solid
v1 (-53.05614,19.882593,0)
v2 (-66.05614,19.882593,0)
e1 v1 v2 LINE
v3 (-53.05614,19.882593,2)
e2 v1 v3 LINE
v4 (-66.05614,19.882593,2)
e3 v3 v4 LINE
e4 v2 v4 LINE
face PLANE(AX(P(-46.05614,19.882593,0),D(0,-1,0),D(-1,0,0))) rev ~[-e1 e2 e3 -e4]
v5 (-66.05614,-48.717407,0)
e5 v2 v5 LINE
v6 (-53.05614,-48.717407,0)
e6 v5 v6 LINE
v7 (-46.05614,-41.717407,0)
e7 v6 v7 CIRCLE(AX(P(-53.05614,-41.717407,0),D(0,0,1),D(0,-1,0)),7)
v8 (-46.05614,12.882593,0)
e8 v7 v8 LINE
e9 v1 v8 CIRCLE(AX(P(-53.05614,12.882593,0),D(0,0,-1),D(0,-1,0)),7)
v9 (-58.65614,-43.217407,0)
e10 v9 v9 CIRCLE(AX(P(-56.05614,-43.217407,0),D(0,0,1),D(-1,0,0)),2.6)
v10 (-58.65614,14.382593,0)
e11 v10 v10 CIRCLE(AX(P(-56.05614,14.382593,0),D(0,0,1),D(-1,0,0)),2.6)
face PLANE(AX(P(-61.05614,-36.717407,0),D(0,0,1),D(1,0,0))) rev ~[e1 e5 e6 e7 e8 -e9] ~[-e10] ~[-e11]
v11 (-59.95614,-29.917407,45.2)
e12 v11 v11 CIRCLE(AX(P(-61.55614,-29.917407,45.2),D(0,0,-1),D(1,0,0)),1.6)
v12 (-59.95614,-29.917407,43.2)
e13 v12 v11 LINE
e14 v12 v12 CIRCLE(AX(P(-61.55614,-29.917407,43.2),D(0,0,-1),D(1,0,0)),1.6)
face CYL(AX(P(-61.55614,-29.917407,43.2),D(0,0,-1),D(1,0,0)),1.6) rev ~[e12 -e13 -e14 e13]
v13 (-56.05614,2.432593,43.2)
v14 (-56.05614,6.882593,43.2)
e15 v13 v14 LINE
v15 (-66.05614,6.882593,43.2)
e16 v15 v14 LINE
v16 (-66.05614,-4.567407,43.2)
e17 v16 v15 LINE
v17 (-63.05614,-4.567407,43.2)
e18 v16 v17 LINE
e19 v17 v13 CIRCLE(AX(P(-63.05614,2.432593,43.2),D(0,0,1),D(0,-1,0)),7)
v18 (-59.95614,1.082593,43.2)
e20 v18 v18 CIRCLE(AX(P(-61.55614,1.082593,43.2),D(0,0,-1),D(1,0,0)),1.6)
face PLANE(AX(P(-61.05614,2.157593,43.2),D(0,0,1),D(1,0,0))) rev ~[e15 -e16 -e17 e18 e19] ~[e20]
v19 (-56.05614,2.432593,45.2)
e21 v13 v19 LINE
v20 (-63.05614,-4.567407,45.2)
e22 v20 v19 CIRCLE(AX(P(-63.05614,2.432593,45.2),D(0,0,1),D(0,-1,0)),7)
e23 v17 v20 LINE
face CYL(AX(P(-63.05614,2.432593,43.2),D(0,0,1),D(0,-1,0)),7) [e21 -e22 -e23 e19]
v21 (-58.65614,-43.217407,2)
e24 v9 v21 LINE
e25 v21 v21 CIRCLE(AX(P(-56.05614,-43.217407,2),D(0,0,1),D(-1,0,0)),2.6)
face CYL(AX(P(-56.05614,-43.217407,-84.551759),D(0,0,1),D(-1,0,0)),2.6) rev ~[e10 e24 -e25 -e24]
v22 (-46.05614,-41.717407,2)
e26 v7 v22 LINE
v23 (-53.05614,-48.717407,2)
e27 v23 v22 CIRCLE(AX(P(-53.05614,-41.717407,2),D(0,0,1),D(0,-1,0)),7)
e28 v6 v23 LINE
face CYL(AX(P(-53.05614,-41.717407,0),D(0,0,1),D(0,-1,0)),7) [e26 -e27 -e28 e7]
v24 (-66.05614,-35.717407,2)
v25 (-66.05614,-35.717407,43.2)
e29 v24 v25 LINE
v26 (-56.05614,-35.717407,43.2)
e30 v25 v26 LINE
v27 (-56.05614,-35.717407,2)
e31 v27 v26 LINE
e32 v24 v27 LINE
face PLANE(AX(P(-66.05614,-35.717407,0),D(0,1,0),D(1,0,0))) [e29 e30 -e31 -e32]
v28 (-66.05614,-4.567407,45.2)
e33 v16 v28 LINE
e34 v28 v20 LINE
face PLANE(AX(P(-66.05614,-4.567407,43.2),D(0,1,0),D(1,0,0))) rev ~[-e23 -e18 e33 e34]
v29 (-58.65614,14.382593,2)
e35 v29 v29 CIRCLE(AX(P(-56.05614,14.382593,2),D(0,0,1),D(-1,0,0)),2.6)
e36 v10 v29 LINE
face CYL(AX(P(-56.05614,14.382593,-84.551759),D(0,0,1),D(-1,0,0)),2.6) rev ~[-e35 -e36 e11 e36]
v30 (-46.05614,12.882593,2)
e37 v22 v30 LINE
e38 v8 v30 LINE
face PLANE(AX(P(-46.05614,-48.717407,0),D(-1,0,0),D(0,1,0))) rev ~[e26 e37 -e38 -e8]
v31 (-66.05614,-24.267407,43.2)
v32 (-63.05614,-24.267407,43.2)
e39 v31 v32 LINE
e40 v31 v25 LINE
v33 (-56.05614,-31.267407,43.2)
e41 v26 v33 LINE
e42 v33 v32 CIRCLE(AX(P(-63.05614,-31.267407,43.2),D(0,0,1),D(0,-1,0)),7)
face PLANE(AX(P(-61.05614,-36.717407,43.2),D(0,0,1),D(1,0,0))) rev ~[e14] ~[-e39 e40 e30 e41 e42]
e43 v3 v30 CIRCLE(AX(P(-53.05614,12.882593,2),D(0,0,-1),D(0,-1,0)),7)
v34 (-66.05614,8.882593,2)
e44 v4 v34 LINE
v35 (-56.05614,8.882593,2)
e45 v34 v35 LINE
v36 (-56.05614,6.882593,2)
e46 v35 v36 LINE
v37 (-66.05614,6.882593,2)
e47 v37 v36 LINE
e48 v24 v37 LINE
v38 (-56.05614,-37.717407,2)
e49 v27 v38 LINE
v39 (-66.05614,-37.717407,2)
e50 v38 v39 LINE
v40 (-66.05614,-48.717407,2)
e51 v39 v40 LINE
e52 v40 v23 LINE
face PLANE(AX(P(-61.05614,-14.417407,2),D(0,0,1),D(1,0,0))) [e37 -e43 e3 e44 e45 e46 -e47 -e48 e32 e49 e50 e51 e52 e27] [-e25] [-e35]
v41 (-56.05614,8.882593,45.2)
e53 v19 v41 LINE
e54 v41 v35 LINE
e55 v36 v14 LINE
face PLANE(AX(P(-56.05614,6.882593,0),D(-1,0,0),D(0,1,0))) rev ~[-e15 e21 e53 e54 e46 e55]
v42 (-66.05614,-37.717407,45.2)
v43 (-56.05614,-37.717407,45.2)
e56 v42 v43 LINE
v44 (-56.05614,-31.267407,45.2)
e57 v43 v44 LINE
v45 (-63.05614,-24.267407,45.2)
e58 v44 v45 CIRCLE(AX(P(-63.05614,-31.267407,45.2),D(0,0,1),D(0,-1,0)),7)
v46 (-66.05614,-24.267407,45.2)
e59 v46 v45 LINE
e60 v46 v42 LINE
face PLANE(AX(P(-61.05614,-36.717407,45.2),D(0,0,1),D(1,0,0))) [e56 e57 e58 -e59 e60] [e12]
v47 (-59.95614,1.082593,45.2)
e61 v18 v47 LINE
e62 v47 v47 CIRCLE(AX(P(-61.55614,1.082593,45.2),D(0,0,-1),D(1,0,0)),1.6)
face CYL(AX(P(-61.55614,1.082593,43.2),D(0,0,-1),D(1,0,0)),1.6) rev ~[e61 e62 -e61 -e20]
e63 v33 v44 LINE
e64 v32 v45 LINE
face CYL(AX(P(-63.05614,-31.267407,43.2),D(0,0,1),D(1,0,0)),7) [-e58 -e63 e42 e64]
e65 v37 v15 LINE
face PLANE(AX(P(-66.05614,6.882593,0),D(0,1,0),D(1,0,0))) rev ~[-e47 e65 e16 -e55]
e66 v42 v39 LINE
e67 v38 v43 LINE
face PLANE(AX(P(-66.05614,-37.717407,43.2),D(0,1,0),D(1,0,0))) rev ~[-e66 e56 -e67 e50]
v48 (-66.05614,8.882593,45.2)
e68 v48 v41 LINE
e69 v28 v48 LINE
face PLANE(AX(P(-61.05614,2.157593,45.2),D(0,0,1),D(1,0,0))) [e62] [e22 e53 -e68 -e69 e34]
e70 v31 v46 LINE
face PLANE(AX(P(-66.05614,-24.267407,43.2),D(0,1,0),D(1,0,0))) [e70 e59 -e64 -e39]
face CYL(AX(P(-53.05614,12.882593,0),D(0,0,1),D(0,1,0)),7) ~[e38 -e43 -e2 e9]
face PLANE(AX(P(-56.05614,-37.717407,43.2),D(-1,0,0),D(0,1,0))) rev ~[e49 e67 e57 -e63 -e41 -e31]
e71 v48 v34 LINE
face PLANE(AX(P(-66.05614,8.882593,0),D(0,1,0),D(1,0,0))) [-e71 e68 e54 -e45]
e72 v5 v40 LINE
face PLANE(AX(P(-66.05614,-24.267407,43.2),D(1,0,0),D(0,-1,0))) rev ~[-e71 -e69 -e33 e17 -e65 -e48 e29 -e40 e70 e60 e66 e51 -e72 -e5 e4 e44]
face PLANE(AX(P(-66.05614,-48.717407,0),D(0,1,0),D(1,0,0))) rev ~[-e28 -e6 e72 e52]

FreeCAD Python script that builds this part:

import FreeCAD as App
import Part
import Sketcher
Q = App.Units.Quantity


def edges_at(feature, points):
    """Names of the edges that pass closest to the given points."""
    edges = feature.Shape.Edges
    near = lambda p: min(range(len(edges)), key=lambda i: edges[i].distToShape(Part.Vertex(*p))[0])
    return sorted({f"Edge{near(p) + 1}" for p in points})

doc = App.newDocument("Part")
params = doc.addObject("Spreadsheet::Sheet", "Params")
for row, (alias, value) in enumerate([
    ("sketch1_width", "10 mm"),
    ("sketch1_width2", "20 mm"),
    ("sketch1_height", "2 mm"),
    ("sketch1_height2", "11 mm"),
    ("sketch1_height3", "42.6 mm"),
    ("pad1_length", "2 mm"),
    ("sketch2_width", "10 mm"),
    ("sketch2_height", "2 mm"),
    ("pad2_length", "43.2 mm"),
    ("sketch3_width", "10 mm"),
    ("sketch3_height", "13.45 mm"),
    ("pad3_length", "2 mm"),
    ("sketch4_diameter", "3.2 mm"),
    ("sketch5_diameter", "5.2 mm"),
    ("hole_diameter", "5.2 mm"),
    ("fillet_radius", "7 mm"),
], start=1):
    params.set(f"A{row}", alias)
    params.set(f"B{row}", "=" + value)
    params.setAlias(f"B{row}", alias)

body = doc.addObject("PartDesign::Body", "Body")

# Sketch on XY plane
sketch1 = body.newObject("Sketcher::SketchObject", "Sketch")
sketch1.AttachmentSupport = (doc.getObject("XY_Plane"), [""])
sketch1.MapMode = "FlatFace"
sketch1.addGeometry([
    Part.LineSegment(App.Vector(-66.1, 6.9, 0), App.Vector(-66.1, -35.7, 0)),  # 0
    Part.LineSegment(App.Vector(-66.1, -35.7, 0), App.Vector(-56.1, -35.7, 0)),  # 1
    Part.LineSegment(App.Vector(-56.1, -35.7, 0), App.Vector(-56.1, -37.7, 0)),  # 2
    Part.LineSegment(App.Vector(-56.1, -37.7, 0), App.Vector(-66.1, -37.7, 0)),  # 3
    Part.LineSegment(App.Vector(-66.1, -37.7, 0), App.Vector(-66.1, -48.7, 0)),  # 4
    Part.LineSegment(App.Vector(-66.1, -48.7, 0), App.Vector(-46.1, -48.7, 0)),  # 5
    Part.LineSegment(App.Vector(-46.1, -48.7, 0), App.Vector(-46.1, 19.9, 0)),  # 6
    Part.LineSegment(App.Vector(-46.1, 19.9, 0), App.Vector(-66.1, 19.9, 0)),  # 7
    Part.LineSegment(App.Vector(-66.1, 19.9, 0), App.Vector(-66.1, 8.9, 0)),  # 8
    Part.LineSegment(App.Vector(-66.1, 8.9, 0), App.Vector(-56.1, 8.9, 0)),  # 9
    Part.LineSegment(App.Vector(-56.1, 8.9, 0), App.Vector(-56.1, 6.9, 0)),  # 10
    Part.LineSegment(App.Vector(-56.1, 6.9, 0), App.Vector(-66.1, 6.9, 0)),  # 11
], False)
sketch1.addConstraint([
    Sketcher.Constraint("Coincident", 0, 2, 1, 1),
    Sketcher.Constraint("Coincident", 1, 2, 2, 1),
    Sketcher.Constraint("Coincident", 2, 2, 3, 1),
    Sketcher.Constraint("Coincident", 3, 2, 4, 1),
    Sketcher.Constraint("Coincident", 4, 2, 5, 1),
    Sketcher.Constraint("Coincident", 5, 2, 6, 1),
    Sketcher.Constraint("Coincident", 6, 2, 7, 1),
    Sketcher.Constraint("Coincident", 7, 2, 8, 1),
    Sketcher.Constraint("Coincident", 8, 2, 9, 1),
    Sketcher.Constraint("Coincident", 9, 2, 10, 1),
    Sketcher.Constraint("Coincident", 10, 2, 11, 1),
    Sketcher.Constraint("Coincident", 11, 2, 0, 1),
    Sketcher.Constraint("Vertical", 0),
    Sketcher.Constraint("Horizontal", 1),
    Sketcher.Constraint("Vertical", 2),
    Sketcher.Constraint("Horizontal", 3),
    Sketcher.Constraint("Vertical", 4),
    Sketcher.Constraint("Horizontal", 5),
    Sketcher.Constraint("Vertical", 6),
    Sketcher.Constraint("Horizontal", 7),
    Sketcher.Constraint("Vertical", 8),
    Sketcher.Constraint("Horizontal", 9),
    Sketcher.Constraint("Vertical", 10),
    Sketcher.Constraint("Horizontal", 11),
    Sketcher.Constraint("Vertical", 0, 2, 3, 2),
    Sketcher.Constraint("Vertical", 4, 2, 7, 2),
    Sketcher.Constraint("Vertical", 2, 2, 9, 2),
    Sketcher.Constraint("Equal", 4, 8),
    Sketcher.Constraint("Equal", 2, 10),
    Sketcher.Constraint("DistanceX", 1, 1, 1, 2, Q("10 mm")),
    Sketcher.Constraint("DistanceX", 5, 1, 5, 2, Q("20 mm")),
    Sketcher.Constraint("DistanceY", 2, 2, 2, 1, Q("2 mm")),
    Sketcher.Constraint("DistanceY", 4, 2, 4, 1, Q("11 mm")),
    Sketcher.Constraint("DistanceY", 0, 2, 0, 1, Q("42.6 mm")),
    Sketcher.Constraint("DistanceX", 0, 2, -1, 1, Q("66.05614 mm")),
    Sketcher.Constraint("DistanceY", 0, 2, -1, 1, Q("35.717407 mm")),
])
sketch1.setExpression("Constraints[29]", "Params.sketch1_width")
sketch1.setExpression("Constraints[30]", "Params.sketch1_width2")
sketch1.setExpression("Constraints[31]", "Params.sketch1_height")
sketch1.setExpression("Constraints[32]", "Params.sketch1_height2")
sketch1.setExpression("Constraints[33]", "Params.sketch1_height3")
pad1 = body.newObject("PartDesign::Pad", "Pad")
pad1.Profile = sketch1
pad1.setExpression("Length", "Params.pad1_length")

# Sketch on XY plane
sketch2 = body.newObject("Sketcher::SketchObject", "Sketch001")
sketch2.AttachmentSupport = (doc.getObject("XY_Plane"), [""])
sketch2.MapMode = "FlatFace"
sketch2.addGeometry([
    Part.LineSegment(App.Vector(-66.1, -35.7, 0), App.Vector(-66.1, -37.7, 0)),  # 0
    Part.LineSegment(App.Vector(-66.1, -37.7, 0), App.Vector(-56.1, -37.7, 0)),  # 1
    Part.LineSegment(App.Vector(-56.1, -37.7, 0), App.Vector(-56.1, -35.7, 0)),  # 2
    Part.LineSegment(App.Vector(-56.1, -35.7, 0), App.Vector(-66.1, -35.7, 0)),  # 3
    Part.LineSegment(App.Vector(-66.1, 8.9, 0), App.Vector(-66.1, 6.9, 0)),  # 4
    Part.LineSegment(App.Vector(-66.1, 6.9, 0), App.Vector(-56.1, 6.9, 0)),  # 5
    Part.LineSegment(App.Vector(-56.1, 6.9, 0), App.Vector(-56.1, 8.9, 0)),  # 6
    Part.LineSegment(App.Vector(-56.1, 8.9, 0), App.Vector(-66.1, 8.9, 0)),  # 7
], False)
sketch2.addConstraint([
    Sketcher.Constraint("Coincident", 0, 2, 1, 1),
    Sketcher.Constraint("Coincident", 1, 2, 2, 1),
    Sketcher.Constraint("Coincident", 2, 2, 3, 1),
    Sketcher.Constraint("Coincident", 3, 2, 0, 1),
    Sketcher.Constraint("Coincident", 4, 2, 5, 1),
    Sketcher.Constraint("Coincident", 5, 2, 6, 1),
    Sketcher.Constraint("Coincident", 6, 2, 7, 1),
    Sketcher.Constraint("Coincident", 7, 2, 4, 1),
    Sketcher.Constraint("Vertical", 0),
    Sketcher.Constraint("Horizontal", 1),
    Sketcher.Constraint("Vertical", 2),
    Sketcher.Constraint("Horizontal", 3),
    Sketcher.Constraint("Vertical", 4),
    Sketcher.Constraint("Horizontal", 5),
    Sketcher.Constraint("Vertical", 6),
    Sketcher.Constraint("Horizontal", 7),
    Sketcher.Constraint("Vertical", 3, 2, 4, 2),
    Sketcher.Constraint("Vertical", 2, 2, 5, 2),
    Sketcher.Constraint("Equal", 2, 4),
    Sketcher.Constraint("DistanceX", 1, 1, 1, 2, Q("10 mm")),
    Sketcher.Constraint("DistanceY", 0, 2, 0, 1, Q("2 mm")),
    Sketcher.Constraint("DistanceY", 3, 2, 4, 2, Q("42.6 mm")),
    Sketcher.Constraint("DistanceX", 0, 2, -1, 1, Q("66.05614 mm")),
    Sketcher.Constraint("DistanceY", 0, 2, -1, 1, Q("37.717407 mm")),
])
sketch2.setExpression("Constraints[19]", "Params.sketch2_width")
sketch2.setExpression("Constraints[20]", "Params.sketch2_height")
pad2 = body.newObject("PartDesign::Pad", "Pad001")
pad2.Profile = sketch2
pad2.setExpression("Length", "Params.pad2_length")

# Sketch on XY plane
sketch3 = body.newObject("Sketcher::SketchObject", "Sketch002")
sketch3.AttachmentSupport = (doc.getObject("XY_Plane"), [""])
sketch3.MapMode = "FlatFace"
sketch3.AttachmentOffset = App.Placement(App.Vector(0, 0, 43.2), App.Rotation())
sketch3.addGeometry([
    Part.LineSegment(App.Vector(-66, -38, 0), App.Vector(-56, -38, 0)),  # 0
    Part.LineSegment(App.Vector(-56, -38, 0), App.Vector(-56, -24, 0)),  # 1
    Part.LineSegment(App.Vector(-56, -24, 0), App.Vector(-66, -24, 0)),  # 2
    Part.LineSegment(App.Vector(-66, -24, 0), App.Vector(-66, -38, 0)),  # 3
    Part.LineSegment(App.Vector(-66, 9, 0), App.Vector(-66, -5, 0)),  # 4
    Part.LineSegment(App.Vector(-66, -5, 0), App.Vector(-56, -5, 0)),  # 5
    Part.LineSegment(App.Vector(-56, -5, 0), App.Vector(-56, 9, 0)),  # 6
    Part.LineSegment(App.Vector(-56, 9, 0), App.Vector(-66, 9, 0)),  # 7
], False)
sketch3.addConstraint([
    Sketcher.Constraint("Coincident", 0, 2, 1, 1),
    Sketcher.Constraint("Coincident", 1, 2, 2, 1),
    Sketcher.Constraint("Coincident", 2, 2, 3, 1),
    Sketcher.Constraint("Coincident", 3, 2, 0, 1),
    Sketcher.Constraint("Coincident", 4, 2, 5, 1),
    Sketcher.Constraint("Coincident", 5, 2, 6, 1),
    Sketcher.Constraint("Coincident", 6, 2, 7, 1),
    Sketcher.Constraint("Coincident", 7, 2, 4, 1),
    Sketcher.Constraint("Horizontal", 0),
    Sketcher.Constraint("Vertical", 1),
    Sketcher.Constraint("Horizontal", 2),
    Sketcher.Constraint("Vertical", 3),
    Sketcher.Constraint("Vertical", 4),
    Sketcher.Constraint("Horizontal", 5),
    Sketcher.Constraint("Vertical", 6),
    Sketcher.Constraint("Horizontal", 7),
    Sketcher.Constraint("Vertical", 3, 2, 4, 2),
    Sketcher.Constraint("Vertical", 1, 2, 5, 2),
    Sketcher.Constraint("Equal", 3, 4),
    Sketcher.Constraint("DistanceX", 0, 1, 0, 2, Q("10 mm")),
    Sketcher.Constraint("DistanceY", 1, 1, 1, 2, Q("13.45 mm")),
    Sketcher.Constraint("DistanceY", 2, 2, 4, 2, Q("19.7 mm")),
    Sketcher.Constraint("DistanceX", 0, 2, -1, 1, Q("56.05614 mm")),
    Sketcher.Constraint("DistanceY", 0, 2, -1, 1, Q("37.717407 mm")),
])
sketch3.setExpression("Constraints[19]", "Params.sketch3_width")
sketch3.setExpression("Constraints[20]", "Params.sketch3_height")
pad3 = body.newObject("PartDesign::Pad", "Pad002")
pad3.Profile = sketch3
pad3.setExpression("Length", "Params.pad3_length")

# Sketch on XY plane
sketch4 = body.newObject("Sketcher::SketchObject", "Sketch003")
sketch4.AttachmentSupport = (doc.getObject("XY_Plane"), [""])
sketch4.MapMode = "FlatFace"
sketch4.AttachmentOffset = App.Placement(App.Vector(0, 0, 43.2), App.Rotation())
sketch4.addGeometry([
    Part.Circle(App.Vector(-61.6, -29.9, 0), App.Vector(0, 0, 1), 1.6),
    Part.Circle(App.Vector(-61.6, 1.1, 0), App.Vector(0, 0, 1), 1.6),
], False)
sketch4.addConstraint([
    Sketcher.Constraint("Equal", 0, 1),
    Sketcher.Constraint("Vertical", 0, 3, 1, 3),
    Sketcher.Constraint("Diameter", 0, Q("3.2 mm")),
    Sketcher.Constraint("DistanceY", 0, 3, 1, 3, Q("31 mm")),
    Sketcher.Constraint("DistanceX", 0, 3, -1, 1, Q("61.55614 mm")),
    Sketcher.Constraint("DistanceY", 0, 3, -1, 1, Q("29.917407 mm")),
])
sketch4.setExpression("Constraints[2]", "Params.sketch4_diameter")
pocket1 = body.newObject("PartDesign::Pocket", "Pocket")
pocket1.Profile = sketch4
pocket1.Type = "ThroughAll"
pocket1.Reversed = True

# Sketch on XY plane
sketch5 = body.newObject("Sketcher::SketchObject", "Sketch004")
sketch5.AttachmentSupport = (doc.getObject("XY_Plane"), [""])
sketch5.MapMode = "FlatFace"
sketch5.addGeometry([
    Part.Circle(App.Vector(-56.1, 14.4, 0), App.Vector(0, 0, 1), 2.6),
    Part.Circle(App.Vector(-56.1, -43.2, 0), App.Vector(0, 0, 1), 2.6),
], False)
sketch5.addConstraint([
    Sketcher.Constraint("Equal", 0, 1),
    Sketcher.Constraint("Vertical", 0, 3, 1, 3),
    Sketcher.Constraint("Diameter", 0, Q("5.2 mm")),
    Sketcher.Constraint("DistanceY", 1, 3, 0, 3, Q("57.6 mm")),
    Sketcher.Constraint("DistanceX", 0, 3, -1, 1, Q("56.05614 mm")),
    Sketcher.Constraint("DistanceY", -1, 1, 0, 3, Q("14.382593 mm")),
])
sketch5.setExpression("Constraints[2]", "Params.sketch5_diameter")
doc.recompute()
hole = body.newObject("PartDesign::Hole", "Hole")
hole.Profile = sketch5
hole.ThreadType = "None"
hole.setExpression("Diameter", "Params.hole_diameter")
hole.DepthType = "ThroughAll"
hole.Reversed = True
doc.recompute()

fillet = body.newObject("PartDesign::Fillet", "Fillet")
fillet.Base = (hole, edges_at(hole, [
    (-56.056, -4.567, 44.2),
    (-56.056, -24.267, 44.2),
    (-46.056, 19.883, 1),
    (-46.056, -48.717, 1),
]))
fillet.setExpression("Radius", "Params.fillet_radius")

doc.recompute()
